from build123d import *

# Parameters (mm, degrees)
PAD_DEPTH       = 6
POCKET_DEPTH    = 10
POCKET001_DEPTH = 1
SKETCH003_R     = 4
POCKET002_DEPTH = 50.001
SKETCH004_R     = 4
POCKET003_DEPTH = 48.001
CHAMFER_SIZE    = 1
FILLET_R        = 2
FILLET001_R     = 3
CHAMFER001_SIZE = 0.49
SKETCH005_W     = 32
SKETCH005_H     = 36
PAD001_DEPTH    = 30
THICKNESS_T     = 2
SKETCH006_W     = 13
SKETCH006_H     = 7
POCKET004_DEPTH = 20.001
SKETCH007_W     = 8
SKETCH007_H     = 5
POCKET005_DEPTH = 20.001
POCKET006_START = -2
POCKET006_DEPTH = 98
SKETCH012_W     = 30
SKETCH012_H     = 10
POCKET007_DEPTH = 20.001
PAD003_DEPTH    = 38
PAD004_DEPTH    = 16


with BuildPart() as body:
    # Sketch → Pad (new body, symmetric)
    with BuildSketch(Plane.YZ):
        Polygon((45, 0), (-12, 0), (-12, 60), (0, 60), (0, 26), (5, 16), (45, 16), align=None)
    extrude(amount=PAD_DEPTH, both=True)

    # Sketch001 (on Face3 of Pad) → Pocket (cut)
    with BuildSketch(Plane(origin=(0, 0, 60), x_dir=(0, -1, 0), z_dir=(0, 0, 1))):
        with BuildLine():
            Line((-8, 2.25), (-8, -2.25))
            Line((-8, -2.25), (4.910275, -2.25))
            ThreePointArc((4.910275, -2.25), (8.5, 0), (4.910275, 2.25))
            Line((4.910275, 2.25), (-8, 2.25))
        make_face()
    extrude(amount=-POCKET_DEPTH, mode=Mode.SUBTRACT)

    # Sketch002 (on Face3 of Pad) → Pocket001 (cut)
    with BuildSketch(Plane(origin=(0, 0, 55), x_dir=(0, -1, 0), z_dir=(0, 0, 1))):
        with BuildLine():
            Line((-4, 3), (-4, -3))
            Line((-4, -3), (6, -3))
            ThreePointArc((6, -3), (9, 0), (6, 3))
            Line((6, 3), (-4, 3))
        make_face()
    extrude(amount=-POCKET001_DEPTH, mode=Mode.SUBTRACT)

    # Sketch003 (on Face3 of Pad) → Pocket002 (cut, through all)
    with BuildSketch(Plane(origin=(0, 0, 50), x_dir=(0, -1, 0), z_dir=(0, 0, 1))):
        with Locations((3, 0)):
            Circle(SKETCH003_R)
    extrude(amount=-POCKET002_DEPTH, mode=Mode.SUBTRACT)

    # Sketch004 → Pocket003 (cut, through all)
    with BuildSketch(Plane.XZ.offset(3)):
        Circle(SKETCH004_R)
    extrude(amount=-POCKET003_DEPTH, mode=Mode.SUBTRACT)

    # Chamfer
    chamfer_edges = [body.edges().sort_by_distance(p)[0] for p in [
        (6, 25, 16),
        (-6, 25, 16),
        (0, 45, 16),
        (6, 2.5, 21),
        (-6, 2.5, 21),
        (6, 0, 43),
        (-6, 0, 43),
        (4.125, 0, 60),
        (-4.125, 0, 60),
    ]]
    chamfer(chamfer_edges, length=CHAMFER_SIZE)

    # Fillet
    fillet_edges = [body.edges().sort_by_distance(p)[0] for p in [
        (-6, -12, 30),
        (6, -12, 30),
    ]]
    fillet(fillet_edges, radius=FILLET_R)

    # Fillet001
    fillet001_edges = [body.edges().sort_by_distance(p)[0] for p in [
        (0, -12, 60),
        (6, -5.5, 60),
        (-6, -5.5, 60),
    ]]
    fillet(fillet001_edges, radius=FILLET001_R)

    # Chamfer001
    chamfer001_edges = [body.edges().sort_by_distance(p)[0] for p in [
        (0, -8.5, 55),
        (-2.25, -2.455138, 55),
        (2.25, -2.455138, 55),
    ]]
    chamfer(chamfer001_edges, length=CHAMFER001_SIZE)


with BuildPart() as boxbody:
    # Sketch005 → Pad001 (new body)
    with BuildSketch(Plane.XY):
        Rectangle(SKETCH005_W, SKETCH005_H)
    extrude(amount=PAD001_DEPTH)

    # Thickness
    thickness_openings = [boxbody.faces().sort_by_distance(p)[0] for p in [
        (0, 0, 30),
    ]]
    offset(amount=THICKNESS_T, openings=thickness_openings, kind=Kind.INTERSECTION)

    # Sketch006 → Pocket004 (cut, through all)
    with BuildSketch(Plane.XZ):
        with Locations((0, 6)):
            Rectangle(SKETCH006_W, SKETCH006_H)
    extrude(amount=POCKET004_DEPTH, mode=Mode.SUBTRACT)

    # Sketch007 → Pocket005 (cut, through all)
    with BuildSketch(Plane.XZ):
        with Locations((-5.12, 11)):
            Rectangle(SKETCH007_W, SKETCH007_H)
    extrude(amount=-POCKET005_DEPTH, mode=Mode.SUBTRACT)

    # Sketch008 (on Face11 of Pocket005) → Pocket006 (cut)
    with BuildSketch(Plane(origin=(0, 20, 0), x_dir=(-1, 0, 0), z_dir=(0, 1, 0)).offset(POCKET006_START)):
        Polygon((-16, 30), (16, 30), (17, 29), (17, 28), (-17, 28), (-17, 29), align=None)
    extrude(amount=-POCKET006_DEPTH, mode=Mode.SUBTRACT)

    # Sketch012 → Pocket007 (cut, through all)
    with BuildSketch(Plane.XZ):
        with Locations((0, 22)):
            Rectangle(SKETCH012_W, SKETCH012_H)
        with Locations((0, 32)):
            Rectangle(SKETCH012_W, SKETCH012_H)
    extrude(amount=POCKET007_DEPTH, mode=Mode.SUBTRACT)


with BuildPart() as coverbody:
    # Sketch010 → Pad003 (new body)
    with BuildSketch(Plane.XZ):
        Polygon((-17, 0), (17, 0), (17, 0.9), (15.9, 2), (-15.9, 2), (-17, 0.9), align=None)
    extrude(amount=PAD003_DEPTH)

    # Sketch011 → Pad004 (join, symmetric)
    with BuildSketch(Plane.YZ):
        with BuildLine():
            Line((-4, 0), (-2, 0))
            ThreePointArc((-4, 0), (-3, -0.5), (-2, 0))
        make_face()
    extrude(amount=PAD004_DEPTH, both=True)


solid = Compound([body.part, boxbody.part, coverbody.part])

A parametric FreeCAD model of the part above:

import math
import FreeCAD as App
import Part
import Sketcher


def edges_at(feature, points):
    """Names of the edges that pass closest to the given points."""
    edges = feature.Shape.Edges
    near = lambda p: min(range(len(edges)), key=lambda i: edges[i].distToShape(Part.Vertex(*p))[0])
    return sorted({f"Edge{near(p) + 1}" for p in points})


def faces_at(feature, points):
    """Names of the faces that lie closest to the given points."""
    faces = feature.Shape.Faces
    near = lambda p: min(range(len(faces)), key=lambda i: faces[i].distToShape(Part.Vertex(*p))[0])
    return sorted({f"Face{near(p) + 1}" for p in points})

doc = App.newDocument("Part")
body = doc.addObject("PartDesign::Body", "Body")

# Sketch on YZ plane
sketch1 = doc.addObject("Sketcher::SketchObject", "Sketch")
body.addObject(sketch1)
sketch1.AttachmentSupport = (doc.YZ_Plane, [""])
sketch1.MapMode = "FlatFace"
sketch1.addGeometry([
    Part.LineSegment(App.Vector(-12, 0, 0), App.Vector(45, 0, 0)),  # 0
    Part.LineSegment(App.Vector(45, 0, 0), App.Vector(45, 16, 0)),  # 1
    Part.LineSegment(App.Vector(45, 16, 0), App.Vector(5, 16, 0)),  # 2
    Part.LineSegment(App.Vector(5, 16, 0), App.Vector(0, 26, 0)),  # 3
    Part.LineSegment(App.Vector(0, 26, 0), App.Vector(0, 60, 0)),  # 4
    Part.LineSegment(App.Vector(0, 60, 0), App.Vector(-12, 60, 0)),  # 5
    Part.LineSegment(App.Vector(-12, 60, 0), App.Vector(-12, 0, 0)),  # 6
], False)
sketch1.addConstraint([
    Sketcher.Constraint("Coincident", 0, 2, 1, 1),
    Sketcher.Constraint("Coincident", 1, 2, 2, 1),
    Sketcher.Constraint("Coincident", 2, 2, 3, 1),
    Sketcher.Constraint("Coincident", 3, 2, 4, 1),
    Sketcher.Constraint("Coincident", 4, 2, 5, 1),
    Sketcher.Constraint("Coincident", 5, 2, 6, 1),
    Sketcher.Constraint("Coincident", 6, 2, 0, 1),
    Sketcher.Constraint("Horizontal", 0),
    Sketcher.Constraint("Vertical", 1),
    Sketcher.Constraint("Horizontal", 2),
    Sketcher.Constraint("Vertical", 4),
    Sketcher.Constraint("Horizontal", 5),
    Sketcher.Constraint("Vertical", 6),
    Sketcher.Constraint("PointOnObject", 0, 2, -1),
    Sketcher.Constraint("PointOnObject", 3, 2, -2),
    Sketcher.Constraint("DistanceX", 0, 1, 0, 2, 57.0),
    Sketcher.Constraint("DistanceX", 2, 2, 2, 1, 40.0),
    Sketcher.Constraint("DistanceX", 5, 2, 5, 1, 12.0),
    Sketcher.Constraint("DistanceY", 1, 1, 1, 2, 16.0),
    Sketcher.Constraint("DistanceY", 4, 1, 4, 2, 34.0),
    Sketcher.Constraint("DistanceY", 6, 2, 6, 1, 60.0),
])
pad1 = doc.addObject("PartDesign::Pad", "Pad")
body.addObject(pad1)
pad1.Profile = sketch1
pad1.Length = 12
pad1.Midplane = True

# Sketch on XY plane
sketch2 = doc.addObject("Sketcher::SketchObject", "Sketch001")
body.addObject(sketch2)
sketch2.AttachmentSupport = (doc.XY_Plane, [""])
sketch2.MapMode = "FlatFace"
sketch2.AttachmentOffset = App.Placement(App.Vector(0, 0, 60), App.Rotation())
sketch2.addGeometry([
    Part.LineSegment(App.Vector(2.25, 8, 0), App.Vector(-2.25, 8, 0)),
    Part.LineSegment(App.Vector(-2.25, 8, 0), App.Vector(-2.25, -4.910275, 0)),
    Part.ArcOfCircle(Part.Circle(App.Vector(0, -6, 0), App.Vector(0, 0, 1), 2.5), math.radians(154.158063), math.radians(385.841937)),
    Part.LineSegment(App.Vector(2.25, -4.910275, 0), App.Vector(2.25, 8, 0)),
], False)
sketch2.addConstraint([
    Sketcher.Constraint("Coincident", 0, 2, 1, 1),
    Sketcher.Constraint("Coincident", 1, 2, 2, 1),
    Sketcher.Constraint("Coincident", 2, 2, 3, 1),
    Sketcher.Constraint("Coincident", 3, 2, 0, 1),
    Sketcher.Constraint("Horizontal", 0),
    Sketcher.Constraint("Vertical", 1),
    Sketcher.Constraint("Vertical", 3),
    Sketcher.Constraint("Symmetric", 1, 2, 2, 2, -2),
    Sketcher.Constraint("Radius", 2, 2.5),
    Sketcher.Constraint("DistanceX", 0, 2, 0, 1, 4.5),
    Sketcher.Constraint("DistanceY", 2, 3, -1, 1, 6.0),
    Sketcher.Constraint("DistanceY", -1, 1, 0, 2, 8.0),
])
pocket1 = doc.addObject("PartDesign::Pocket", "Pocket")
body.addObject(pocket1)
pocket1.Profile = sketch2
pocket1.Length = 10

# Sketch on XY plane
sketch3 = doc.addObject("Sketcher::SketchObject", "Sketch002")
body.addObject(sketch3)
sketch3.AttachmentSupport = (doc.XY_Plane, [""])
sketch3.MapMode = "FlatFace"
sketch3.AttachmentOffset = App.Placement(App.Vector(0, 0, 55), App.Rotation())
sketch3.addGeometry([
    Part.LineSegment(App.Vector(3, 4, 0), App.Vector(-3, 4, 0)),
    Part.LineSegment(App.Vector(-3, 4, 0), App.Vector(-3, -6, 0)),
    Part.ArcOfCircle(Part.Circle(App.Vector(0, -6, 0), App.Vector(0, 0, 1), 3), math.radians(180), math.radians(360)),
    Part.LineSegment(App.Vector(3, -6, 0), App.Vector(3, 4, 0)),
], False)
sketch3.addConstraint([
    Sketcher.Constraint("Coincident", 0, 2, 1, 1),
    Sketcher.Constraint("Tangent", 1, 2, 2, 1),
    Sketcher.Constraint("Tangent", 2, 2, 3, 1),
    Sketcher.Constraint("Coincident", 3, 2, 0, 1),
    Sketcher.Constraint("Horizontal", 0),
    Sketcher.Constraint("Vertical", 1),
    Sketcher.Constraint("Vertical", 3),
    Sketcher.Constraint("PointOnObject", 2, 3, -2),
    Sketcher.Constraint("Radius", 2, 3.0),
    Sketcher.Constraint("DistanceY", 1, 2, 1, 1, 10.0),
    Sketcher.Constraint("DistanceY", 2, 3, -1, 1, 6.0),
])
pocket2 = doc.addObject("PartDesign::Pocket", "Pocket001")
body.addObject(pocket2)
pocket2.Profile = sketch3
pocket2.Length = 1

# Sketch on XY plane
sketch4 = doc.addObject("Sketcher::SketchObject", "Sketch003")
body.addObject(sketch4)
sketch4.AttachmentSupport = (doc.XY_Plane, [""])
sketch4.MapMode = "FlatFace"
sketch4.AttachmentOffset = App.Placement(App.Vector(0, 0, 50), App.Rotation())
sketch4.addGeometry(Part.Circle(App.Vector(0, -3, 0), App.Vector(0, 0, 1), 4), False)
sketch4.addConstraint([
    Sketcher.Constraint("PointOnObject", 0, 3, -2),
    Sketcher.Constraint("Diameter", 0, 8.0),
    Sketcher.Constraint("DistanceY", 0, 3, -1, 1, 3.0),
])
pocket3 = doc.addObject("PartDesign::Pocket", "Pocket002")
body.addObject(pocket3)
pocket3.Profile = sketch4
pocket3.Type = "ThroughAll"

# Sketch on XZ plane
sketch5 = doc.addObject("Sketcher::SketchObject", "Sketch004")
body.addObject(sketch5)
sketch5.AttachmentSupport = (doc.XZ_Plane, [""])
sketch5.MapMode = "FlatFace"
sketch5.AttachmentOffset = App.Placement(App.Vector(0, 0, 3), App.Rotation())
sketch5.addGeometry(Part.Circle(App.Vector(0, 0, 0), App.Vector(0, 0, 1), 4), False)
sketch5.addConstraint([
    Sketcher.Constraint("Coincident", 0, 3, -1, 1),
    Sketcher.Constraint("Diameter", 0, 8.0),
])
pocket4 = doc.addObject("PartDesign::Pocket", "Pocket003")
body.addObject(pocket4)
pocket4.Profile = sketch5
pocket4.Type = "ThroughAll"
doc.recompute()

chamfer = doc.addObject("PartDesign::Chamfer", "Chamfer")
body.addObject(chamfer)
chamfer.Base = (pocket4, edges_at(pocket4, [
    (6, 25, 16),
    (-6, 25, 16),
    (0, 45, 16),
    (6, 2.5, 21),
    (-6, 2.5, 21),
    (6, 0, 43),
    (-6, 0, 43),
    (4.125, 0, 60),
    (-4.125, 0, 60),
]))
chamfer.Size = 1
doc.recompute()

fillet = doc.addObject("PartDesign::Fillet", "Fillet")
body.addObject(fillet)
fillet.Base = (chamfer, edges_at(chamfer, [(-6, -12, 30), (6, -12, 30)]))
fillet.Radius = 2
doc.recompute()

fillet2 = doc.addObject("PartDesign::Fillet", "Fillet001")
body.addObject(fillet2)
fillet2.Base = (fillet, edges_at(fillet, [(0, -12, 60), (6, -5.5, 60), (-6, -5.5, 60)]))
fillet2.Radius = 3
doc.recompute()

chamfer2 = doc.addObject("PartDesign::Chamfer", "Chamfer001")
body.addObject(chamfer2)
chamfer2.Base = (fillet2, edges_at(fillet2, [(0, -8.5, 55), (-2.25, -2.455, 55), (2.25, -2.455, 55)]))
chamfer2.Size = 0.49
body2 = doc.addObject("PartDesign::Body", "Body001")

# Sketch on XY plane
sketch6 = doc.addObject("Sketcher::SketchObject", "Sketch005")
body2.addObject(sketch6)
sketch6.AttachmentSupport = (doc.getObject("XY_Plane001"), [""])
sketch6.MapMode = "FlatFace"
sketch6.addGeometry([
    Part.LineSegment(App.Vector(-16, 18, 0), App.Vector(-16, -18, 0)),
    Part.LineSegment(App.Vector(-16, -18, 0), App.Vector(16, -18, 0)),
    Part.LineSegment(App.Vector(16, -18, 0), App.Vector(16, 18, 0)),
    Part.LineSegment(App.Vector(16, 18, 0), App.Vector(-16, 18, 0)),
], False)
sketch6.addConstraint([
    Sketcher.Constraint("Coincident", 0, 2, 1, 1),
    Sketcher.Constraint("Coincident", 1, 2, 2, 1),
    Sketcher.Constraint("Coincident", 2, 2, 3, 1),
    Sketcher.Constraint("Coincident", 3, 2, 0, 1),
    Sketcher.Constraint("Vertical", 0),
    Sketcher.Constraint("Horizontal", 1),
    Sketcher.Constraint("Vertical", 2),
    Sketcher.Constraint("Horizontal", 3),
    Sketcher.Constraint("Symmetric", 0, 2, 2, 2, -1, 1),
    Sketcher.Constraint("DistanceX", 1, 1, 1, 2, 32.0),
    Sketcher.Constraint("DistanceY", 0, 2, 0, 1, 36.0),
])
pad2 = doc.addObject("PartDesign::Pad", "Pad001")
body2.addObject(pad2)
pad2.Profile = sketch6
pad2.Length = 30
doc.recompute()

thickness = doc.addObject("PartDesign::Thickness", "Thickness")
body2.addObject(thickness)
thickness.Base = (pad2, faces_at(pad2, [(0, 0, 30)]))
thickness.Value = 2
thickness.Reversed = False
thickness.Join = "Intersection"

# Sketch on XZ plane
sketch7 = doc.addObject("Sketcher::SketchObject", "Sketch006")
body2.addObject(sketch7)
sketch7.AttachmentSupport = (doc.getObject("XZ_Plane001"), [""])
sketch7.MapMode = "FlatFace"
sketch7.addGeometry([
    Part.LineSegment(App.Vector(-6.5, 9.5, 0), App.Vector(-6.5, 2.5, 0)),
    Part.LineSegment(App.Vector(-6.5, 2.5, 0), App.Vector(6.5, 2.5, 0)),
    Part.LineSegment(App.Vector(6.5, 2.5, 0), App.Vector(6.5, 9.5, 0)),
    Part.LineSegment(App.Vector(6.5, 9.5, 0), App.Vector(-6.5, 9.5, 0)),
], False)
sketch7.addConstraint([
    Sketcher.Constraint("Coincident", 0, 2, 1, 1),
    Sketcher.Constraint("Coincident", 1, 2, 2, 1),
    Sketcher.Constraint("Coincident", 2, 2, 3, 1),
    Sketcher.Constraint("Coincident", 3, 2, 0, 1),
    Sketcher.Constraint("Vertical", 0),
    Sketcher.Constraint("Horizontal", 1),
    Sketcher.Constraint("Vertical", 2),
    Sketcher.Constraint("Horizontal", 3),
    Sketcher.Constraint("DistanceX", 1, 1, 1, 2, 13.0),
    Sketcher.Constraint("DistanceY", 0, 2, 0, 1, 7.0),
    Sketcher.Constraint("DistanceX", 0, 2, -1, 1, 6.5),
    Sketcher.Constraint("DistanceY", -1, 1, 0, 2, 2.5),
])
pocket5 = doc.addObject("PartDesign::Pocket", "Pocket004")
body2.addObject(pocket5)
pocket5.Profile = sketch7
pocket5.Type = "ThroughAll"
pocket5.Reversed = True

# Sketch on XZ plane
sketch8 = doc.addObject("Sketcher::SketchObject", "Sketch007")
body2.addObject(sketch8)
sketch8.AttachmentSupport = (doc.getObject("XZ_Plane001"), [""])
sketch8.MapMode = "FlatFace"
sketch8.addGeometry([
    Part.LineSegment(App.Vector(-9.12, 13.5, 0), App.Vector(-9.12, 8.5, 0)),
    Part.LineSegment(App.Vector(-9.12, 8.5, 0), App.Vector(-1.12, 8.5, 0)),
    Part.LineSegment(App.Vector(-1.12, 8.5, 0), App.Vector(-1.12, 13.5, 0)),
    Part.LineSegment(App.Vector(-1.12, 13.5, 0), App.Vector(-9.12, 13.5, 0)),
], False)
sketch8.addConstraint([
    Sketcher.Constraint("Coincident", 0, 2, 1, 1),
    Sketcher.Constraint("Coincident", 1, 2, 2, 1),
    Sketcher.Constraint("Coincident", 2, 2, 3, 1),
    Sketcher.Constraint("Coincident", 3, 2, 0, 1),
    Sketcher.Constraint("Vertical", 0),
    Sketcher.Constraint("Horizontal", 1),
    Sketcher.Constraint("Vertical", 2),
    Sketcher.Constraint("Horizontal", 3),
    Sketcher.Constraint("DistanceX", 1, 1, 1, 2, 8.0),
    Sketcher.Constraint("DistanceY", 0, 2, 0, 1, 5.0),
    Sketcher.Constraint("DistanceY", -1, 1, 0, 2, 8.5),
    Sketcher.Constraint("DistanceX", 0, 2, -1, 1, 9.12),
])
pocket6 = doc.addObject("PartDesign::Pocket", "Pocket005")
body2.addObject(pocket6)
pocket6.Profile = sketch8
pocket6.Type = "ThroughAll"

# Sketch on XZ plane
sketch9 = doc.addObject("Sketcher::SketchObject", "Sketch008")
body2.addObject(sketch9)
sketch9.AttachmentSupport = (doc.getObject("XZ_Plane001"), [""])
sketch9.MapMode = "FlatFace"
sketch9.AttachmentOffset = App.Placement(App.Vector(0, 0, -18), App.Rotation())
sketch9.addGeometry([
    Part.LineSegment(App.Vector(-16, 30, 0), App.Vector(16, 30, 0)),  # 0
    Part.LineSegment(App.Vector(16, 30, 0), App.Vector(17, 29, 0)),  # 1
    Part.LineSegment(App.Vector(17, 29, 0), App.Vector(17, 28, 0)),  # 2
    Part.LineSegment(App.Vector(17, 28, 0), App.Vector(-17, 28, 0)),  # 3
    Part.LineSegment(App.Vector(-17, 28, 0), App.Vector(-17, 29, 0)),  # 4
    Part.LineSegment(App.Vector(-17, 29, 0), App.Vector(-16, 30, 0)),  # 5
], False)
sketch9.addConstraint([
    Sketcher.Constraint("Coincident", 0, 2, 1, 1),
    Sketcher.Constraint("Coincident", 1, 2, 2, 1),
    Sketcher.Constraint("Coincident", 2, 2, 3, 1),
    Sketcher.Constraint("Coincident", 3, 2, 4, 1),
    Sketcher.Constraint("Coincident", 4, 2, 5, 1),
    Sketcher.Constraint("Coincident", 5, 2, 0, 1),
    Sketcher.Constraint("Horizontal", 0),
    Sketcher.Constraint("Vertical", 2),
    Sketcher.Constraint("Horizontal", 3),
    Sketcher.Constraint("Vertical", 4),
    Sketcher.Constraint("Symmetric", 1, 2, 4, 2, -2),
    Sketcher.Constraint("Perpendicular", 1, 5),
    Sketcher.Constraint("Equal", 1, 5),
    Sketcher.Constraint("DistanceX", 0, 1, 0, 2, 32.0),
    Sketcher.Constraint("DistanceX", 3, 2, 3, 1, 34.0),
    Sketcher.Constraint("DistanceY", 2, 2, 2, 1, 1.0),
    Sketcher.Constraint("DistanceY", -1, 1, 0, 2, 30.0),
])
pocket7 = doc.addObject("PartDesign::Pocket", "Pocket006")
body2.addObject(pocket7)
pocket7.Profile = sketch9
pocket7.Length = 98
pocket7.Reversed = True

# Sketch on XZ plane
sketch10 = doc.addObject("Sketcher::SketchObject", "Sketch009")
body2.addObject(sketch10)
sketch10.AttachmentSupport = (doc.getObject("XZ_Plane001"), [""])
sketch10.MapMode = "FlatFace"
sketch10.addGeometry([
    Part.LineSegment(App.Vector(-15, 17, 0), App.Vector(15, 17, 0)),
    Part.LineSegment(App.Vector(15, 17, 0), App.Vector(15, 37, 0)),
    Part.LineSegment(App.Vector(15, 37, 0), App.Vector(-15, 37, 0)),
    Part.LineSegment(App.Vector(-15, 37, 0), App.Vector(-15, 17, 0)),
], False)
sketch10.addConstraint([
    Sketcher.Constraint("Coincident", 0, 2, 1, 1),
    Sketcher.Constraint("Coincident", 1, 2, 2, 1),
    Sketcher.Constraint("Coincident", 2, 2, 3, 1),
    Sketcher.Constraint("Coincident", 3, 2, 0, 1),
    Sketcher.Constraint("Horizontal", 0),
    Sketcher.Constraint("Vertical", 1),
    Sketcher.Constraint("Horizontal", 2),
    Sketcher.Constraint("Vertical", 3),
    Sketcher.Constraint("DistanceX", 0, 1, 0, 2, 30.0),
    Sketcher.Constraint("DistanceY", 1, 1, 1, 2, 20.0),
    Sketcher.Constraint("DistanceX", -1, 1, 0, 2, 15.0),
    Sketcher.Constraint("DistanceY", -1, 1, 0, 2, 17.0),
])
pocket8 = doc.addObject("PartDesign::Pocket", "Pocket007")
body2.addObject(pocket8)
pocket8.Profile = sketch10
pocket8.Type = "ThroughAll"
pocket8.Reversed = True
body3 = doc.addObject("PartDesign::Body", "Body002")

# Sketch on XZ plane
sketch11 = doc.addObject("Sketcher::SketchObject", "Sketch010")
body3.addObject(sketch11)
sketch11.AttachmentSupport = (doc.getObject("XZ_Plane002"), [""])
sketch11.MapMode = "FlatFace"
sketch11.addGeometry([
    Part.LineSegment(App.Vector(-17, 0, 0), App.Vector(17, 0, 0)),  # 0
    Part.LineSegment(App.Vector(17, 0, 0), App.Vector(17, 0.9, 0)),  # 1
    Part.LineSegment(App.Vector(17, 0.9, 0), App.Vector(15.9, 2, 0)),  # 2
    Part.LineSegment(App.Vector(15.9, 2, 0), App.Vector(-15.9, 2, 0)),  # 3
    Part.LineSegment(App.Vector(-15.9, 2, 0), App.Vector(-17, 0.9, 0)),  # 4
    Part.LineSegment(App.Vector(-17, 0.9, 0), App.Vector(-17, 0, 0)),  # 5
], False)
sketch11.addConstraint([
    Sketcher.Constraint("Coincident", 0, 2, 1, 1),
    Sketcher.Constraint("Coincident", 1, 2, 2, 1),
    Sketcher.Constraint("Coincident", 2, 2, 3, 1),
    Sketcher.Constraint("Coincident", 3, 2, 4, 1),
    Sketcher.Constraint("Coincident", 4, 2, 5, 1),
    Sketcher.Constraint("Coincident", 5, 2, 0, 1),
    Sketcher.Constraint("Horizontal", 0),
    Sketcher.Constraint("Vertical", 1),
    Sketcher.Constraint("Horizontal", 3),
    Sketcher.Constraint("Vertical", 5),
    Sketcher.Constraint("Symmetric", 0, 2, 5, 2, -1, 1),
    Sketcher.Constraint("Perpendicular", 2, 4),
    Sketcher.Constraint("Horizontal", 1, 2, 4, 2),
    Sketcher.Constraint("Equal", 2, 4),
    Sketcher.Constraint("DistanceX", 0, 1, 0, 2, 34.0),
    Sketcher.Constraint("DistanceX", 3, 2, 3, 1, 31.8),
    Sketcher.Constraint("DistanceY", 1, 1, 1, 2, 0.9),
])
pad3 = doc.addObject("PartDesign::Pad", "Pad002")
body3.addObject(pad3)
pad3.Profile = sketch11
pad3.Length = 38

# Sketch on YZ plane
sketch12 = doc.addObject("Sketcher::SketchObject", "Sketch011")
body3.addObject(sketch12)
sketch12.AttachmentSupport = (doc.getObject("YZ_Plane002"), [""])
sketch12.MapMode = "FlatFace"
sketch12.addGeometry([
    Part.LineSegment(App.Vector(-2, 0, 0), App.Vector(-4, 0, 0)),
    Part.ArcOfCircle(Part.Circle(App.Vector(-3, 0.75, 0), App.Vector(0, 0, 1), 1.25), math.radians(-143.130102), math.radians(-36.869898)),
], False)
sketch12.addConstraint([
    Sketcher.Constraint("Coincident", 0, 1, 1, 2),
    Sketcher.Constraint("Coincident", 1, 1, 0, 2),
    Sketcher.Constraint("Horizontal", 0),
    Sketcher.Constraint("PointOnObject", 0, 1, -1),
    Sketcher.Constraint("DistanceX", 0, 2, 0, 1, 2.0),
    Sketcher.Constraint("Radius", 1, 1.25),
    Sketcher.Constraint("DistanceX", 1, 3, -1, 1, 3.0),
])
pad4 = doc.addObject("PartDesign::Pad", "Pad003")
body3.addObject(pad4)
pad4.Profile = sketch12
pad4.Length = 32
pad4.Midplane = True

doc.recompute()
